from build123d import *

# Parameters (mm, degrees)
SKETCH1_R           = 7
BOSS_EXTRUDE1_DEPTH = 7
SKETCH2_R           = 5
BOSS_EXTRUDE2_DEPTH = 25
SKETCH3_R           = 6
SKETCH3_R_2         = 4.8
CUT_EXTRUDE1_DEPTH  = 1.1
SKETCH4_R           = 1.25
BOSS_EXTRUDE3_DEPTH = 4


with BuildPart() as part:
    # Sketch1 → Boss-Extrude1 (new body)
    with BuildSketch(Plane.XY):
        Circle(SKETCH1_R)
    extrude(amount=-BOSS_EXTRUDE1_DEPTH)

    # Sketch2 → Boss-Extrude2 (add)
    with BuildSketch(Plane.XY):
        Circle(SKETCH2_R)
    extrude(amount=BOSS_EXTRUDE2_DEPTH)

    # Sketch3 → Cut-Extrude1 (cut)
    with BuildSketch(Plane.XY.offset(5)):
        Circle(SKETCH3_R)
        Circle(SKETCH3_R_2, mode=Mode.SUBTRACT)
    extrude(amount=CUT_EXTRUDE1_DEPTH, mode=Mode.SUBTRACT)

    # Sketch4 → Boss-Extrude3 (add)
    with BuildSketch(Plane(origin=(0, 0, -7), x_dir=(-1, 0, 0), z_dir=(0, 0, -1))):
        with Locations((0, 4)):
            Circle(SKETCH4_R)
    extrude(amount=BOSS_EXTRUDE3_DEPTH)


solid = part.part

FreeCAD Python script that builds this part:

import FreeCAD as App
import Part
import Sketcher
from FreeCAD import Vector

doc = App.newDocument("Part")
body = doc.addObject("PartDesign::Body", "Body")

# Sketch on XY plane
sketch1 = doc.addObject("Sketcher::SketchObject", "Sketch")
body.addObject(sketch1)
sketch1.AttachmentSupport = (doc.XY_Plane, [""])
sketch1.MapMode = "FlatFace"
sketch1.addGeometry(Part.Circle(Vector(0, 0, 0), Vector(0, 0, 1), 7), False)
sketch1.addConstraint([
    Sketcher.Constraint("Coincident", 0, 3, -1, 1),
    Sketcher.Constraint("Diameter", 0, 14.0),
])
pad1 = doc.addObject("PartDesign::Pad", "Pad")
body.addObject(pad1)
pad1.Profile = sketch1
pad1.Length = 7
pad1.Reversed = True

# Sketch on XY plane
sketch2 = doc.addObject("Sketcher::SketchObject", "Sketch001")
body.addObject(sketch2)
sketch2.AttachmentSupport = (doc.XY_Plane, [""])
sketch2.MapMode = "FlatFace"
sketch2.addGeometry(Part.Circle(Vector(0, 0, 0), Vector(0, 0, 1), 5), False)
sketch2.addConstraint([
    Sketcher.Constraint("Coincident", 0, 3, -1, 1),
    Sketcher.Constraint("Diameter", 0, 10.0),
])
pad2 = doc.addObject("PartDesign::Pad", "Pad001")
body.addObject(pad2)
pad2.Profile = sketch2
pad2.Length = 25

# Sketch on XY plane
sketch3 = doc.addObject("Sketcher::SketchObject", "Sketch002")
body.addObject(sketch3)
sketch3.AttachmentSupport = (doc.XY_Plane, [""])
sketch3.MapMode = "FlatFace"
sketch3.AttachmentOffset = App.Placement(Vector(0, 0, 5), App.Rotation())
sketch3.addGeometry([
    Part.Circle(Vector(0, 0, 0), Vector(0, 0, 1), 6),
    Part.Circle(Vector(0, 0, 0), Vector(0, 0, 1), 4.8),
], False)
sketch3.addConstraint([
    Sketcher.Constraint("Coincident", 0, 3, -1, 1),
    Sketcher.Constraint("Coincident", 1, 3, -1, 1),
    Sketcher.Constraint("Diameter", 0, 12.0),
    Sketcher.Constraint("Diameter", 1, 9.6),
])
pocket1 = doc.addObject("PartDesign::Pocket", "Pocket")
body.addObject(pocket1)
pocket1.Profile = sketch3
pocket1.Length = 1.1
pocket1.Reversed = True

# Sketch on XY plane
sketch4 = doc.addObject("Sketcher::SketchObject", "Sketch003")
body.addObject(sketch4)
sketch4.AttachmentSupport = (doc.XY_Plane, [""])
sketch4.MapMode = "FlatFace"
sketch4.AttachmentOffset = App.Placement(Vector(0, 0, -7), App.Rotation())
sketch4.addGeometry(Part.Circle(Vector(0, 4, 0), Vector(0, 0, 1), 1.2), False)
sketch4.addConstraint([
    Sketcher.Constraint("PointOnObject", 0, 3, -2),
    Sketcher.Constraint("Diameter", 0, 2.5),
    Sketcher.Constraint("DistanceY", -1, 1, 0, 3, 4.0),
])
pad3 = doc.addObject("PartDesign::Pad", "Pad002")
body.addObject(pad3)
pad3.Profile = sketch4
pad3.Length = 4
pad3.Reversed = True

doc.recompute()
